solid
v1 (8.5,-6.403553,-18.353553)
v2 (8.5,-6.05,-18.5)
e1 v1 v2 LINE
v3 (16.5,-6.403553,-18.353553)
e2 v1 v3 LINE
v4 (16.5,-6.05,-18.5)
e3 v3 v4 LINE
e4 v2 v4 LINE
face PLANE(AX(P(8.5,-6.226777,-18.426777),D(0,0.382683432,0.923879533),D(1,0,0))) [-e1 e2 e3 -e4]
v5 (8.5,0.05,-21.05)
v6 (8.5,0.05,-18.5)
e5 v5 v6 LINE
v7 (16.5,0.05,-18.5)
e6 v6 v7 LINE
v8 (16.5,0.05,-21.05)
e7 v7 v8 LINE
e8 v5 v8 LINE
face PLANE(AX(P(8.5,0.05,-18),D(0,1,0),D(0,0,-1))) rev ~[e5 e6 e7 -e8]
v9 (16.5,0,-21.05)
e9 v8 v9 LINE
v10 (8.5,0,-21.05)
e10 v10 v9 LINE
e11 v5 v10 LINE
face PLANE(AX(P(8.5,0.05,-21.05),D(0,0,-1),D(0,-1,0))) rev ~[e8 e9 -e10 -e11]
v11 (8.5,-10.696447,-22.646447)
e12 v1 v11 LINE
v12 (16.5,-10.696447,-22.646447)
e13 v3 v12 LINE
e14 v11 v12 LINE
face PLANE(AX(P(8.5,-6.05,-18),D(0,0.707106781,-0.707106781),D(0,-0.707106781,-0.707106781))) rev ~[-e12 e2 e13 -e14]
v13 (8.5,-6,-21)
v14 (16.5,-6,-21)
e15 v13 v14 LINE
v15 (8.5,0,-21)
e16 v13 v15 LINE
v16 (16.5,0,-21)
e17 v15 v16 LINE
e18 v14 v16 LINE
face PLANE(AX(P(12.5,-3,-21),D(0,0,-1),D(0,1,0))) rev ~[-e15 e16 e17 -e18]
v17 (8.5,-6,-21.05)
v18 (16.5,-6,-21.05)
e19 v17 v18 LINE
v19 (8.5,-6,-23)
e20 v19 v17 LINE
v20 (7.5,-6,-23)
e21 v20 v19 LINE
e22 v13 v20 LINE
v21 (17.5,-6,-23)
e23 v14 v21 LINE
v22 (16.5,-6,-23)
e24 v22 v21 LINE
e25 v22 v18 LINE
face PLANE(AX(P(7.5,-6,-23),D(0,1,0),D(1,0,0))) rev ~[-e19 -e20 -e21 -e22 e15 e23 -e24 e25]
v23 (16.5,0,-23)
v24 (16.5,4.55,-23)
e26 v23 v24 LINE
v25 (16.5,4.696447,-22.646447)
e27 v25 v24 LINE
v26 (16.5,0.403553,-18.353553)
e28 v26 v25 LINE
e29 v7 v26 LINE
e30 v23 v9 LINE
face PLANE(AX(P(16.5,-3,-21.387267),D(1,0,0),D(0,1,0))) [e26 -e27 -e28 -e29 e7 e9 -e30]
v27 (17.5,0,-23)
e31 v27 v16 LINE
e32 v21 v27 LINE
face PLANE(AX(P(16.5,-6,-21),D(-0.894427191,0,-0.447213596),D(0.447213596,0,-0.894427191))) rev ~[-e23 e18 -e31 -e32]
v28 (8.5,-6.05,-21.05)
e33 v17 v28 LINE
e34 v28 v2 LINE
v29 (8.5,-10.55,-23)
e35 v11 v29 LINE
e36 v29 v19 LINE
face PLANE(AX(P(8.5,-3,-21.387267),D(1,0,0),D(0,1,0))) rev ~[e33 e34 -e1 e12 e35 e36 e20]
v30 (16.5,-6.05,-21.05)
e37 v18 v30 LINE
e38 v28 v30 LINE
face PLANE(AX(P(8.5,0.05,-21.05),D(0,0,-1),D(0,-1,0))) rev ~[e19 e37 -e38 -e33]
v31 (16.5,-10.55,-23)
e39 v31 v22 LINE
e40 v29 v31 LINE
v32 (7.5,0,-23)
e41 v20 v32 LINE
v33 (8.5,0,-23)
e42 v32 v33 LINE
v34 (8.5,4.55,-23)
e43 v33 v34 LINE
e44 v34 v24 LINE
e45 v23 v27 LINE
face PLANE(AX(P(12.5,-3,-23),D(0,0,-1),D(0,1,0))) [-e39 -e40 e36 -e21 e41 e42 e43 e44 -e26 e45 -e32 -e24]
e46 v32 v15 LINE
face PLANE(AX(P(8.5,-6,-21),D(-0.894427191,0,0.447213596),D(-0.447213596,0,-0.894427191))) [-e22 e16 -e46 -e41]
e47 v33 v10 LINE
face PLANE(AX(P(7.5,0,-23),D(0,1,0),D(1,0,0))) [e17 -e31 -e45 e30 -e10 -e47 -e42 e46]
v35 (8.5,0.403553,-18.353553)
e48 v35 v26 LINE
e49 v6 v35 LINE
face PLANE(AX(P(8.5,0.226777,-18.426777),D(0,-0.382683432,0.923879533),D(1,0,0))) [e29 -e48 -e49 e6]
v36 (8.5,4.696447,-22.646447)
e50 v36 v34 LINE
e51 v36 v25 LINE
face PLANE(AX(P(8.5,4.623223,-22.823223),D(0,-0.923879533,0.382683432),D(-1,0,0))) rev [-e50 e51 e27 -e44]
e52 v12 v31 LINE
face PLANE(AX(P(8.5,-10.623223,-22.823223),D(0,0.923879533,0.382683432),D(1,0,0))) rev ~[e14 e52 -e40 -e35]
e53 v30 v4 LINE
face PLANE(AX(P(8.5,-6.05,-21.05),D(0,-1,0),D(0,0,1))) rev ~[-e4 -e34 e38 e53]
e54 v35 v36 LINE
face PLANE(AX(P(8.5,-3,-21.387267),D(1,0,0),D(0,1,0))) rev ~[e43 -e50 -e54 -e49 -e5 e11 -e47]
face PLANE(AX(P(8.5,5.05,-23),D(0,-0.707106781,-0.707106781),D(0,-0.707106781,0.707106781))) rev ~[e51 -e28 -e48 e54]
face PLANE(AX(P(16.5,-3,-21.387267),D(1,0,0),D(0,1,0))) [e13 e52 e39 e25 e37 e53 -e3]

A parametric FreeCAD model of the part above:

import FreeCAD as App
import Part
import Sketcher
Q = App.Units.Quantity


def edges_at(feature, points):
    """Names of the edges that pass closest to the given points."""
    edges = feature.Shape.Edges
    near = lambda p: min(range(len(edges)), key=lambda i: edges[i].distToShape(Part.Vertex(*p))[0])
    return sorted({f"Edge{near(p) + 1}" for p in points})


def add_polygon(sketch, points):
    """Adds a closed chain of lines whose ends are joined by coincident constraints."""
    first, n = sketch.GeometryCount, len(points)
    for a, b in zip(points, points[1:] + points[:1]):
        sketch.addGeometry(Part.LineSegment(App.Vector(*a, 0), App.Vector(*b, 0)), False)
    for i in range(n):
        sketch.addConstraint(Sketcher.Constraint("Coincident", first + i, 2, first + (i + 1) % n, 1))

doc = App.newDocument("Part")
params = doc.addObject("Spreadsheet::Sheet", "Params")
for row, (alias, value) in enumerate([
    ("sketch1_width", "16.1 mm"),
    ("sketch1_width2", "6.1 mm"),
    ("sketch1_height", "3.05 mm"),
    ("pad1_length", "8 mm"),
    ("sketch2_width", "10 mm"),
    ("sketch2_height", "6 mm"),
    ("pad2_length", "2 mm"),
    ("sketch3_width", "1 mm"),
    ("sketch3_height", "2 mm"),
    ("chamfer_size", "0.5 mm"),
], start=1):
    params.set(f"A{row}", alias)
    params.set(f"B{row}", "=" + value)
    params.setAlias(f"B{row}", alias)

body = doc.addObject("PartDesign::Body", "Body")

# Sketch on YZ plane
sketch1 = body.newObject("Sketcher::SketchObject", "Sketch")
sketch1.AttachmentSupport = (doc.getObject("YZ_Plane"), [""])
sketch1.MapMode = "FlatFace"
add_polygon(sketch1, [(-3, 2.5), (-8.1, -2.5), (8.1, -2.5), (3, 2.5), (3, -0.6), (-3, -0.6)])  # lines 0-5
sketch1.addConstraint(Sketcher.Constraint("Horizontal", 1))
sketch1.addConstraint(Sketcher.Constraint("Vertical", 3))
sketch1.addConstraint(Sketcher.Constraint("Horizontal", 4))
sketch1.addConstraint(Sketcher.Constraint("Vertical", 5))
sketch1.addConstraint(Sketcher.Constraint("Symmetric", 2, 2, 5, 2, -2))
sketch1.addConstraint(Sketcher.Constraint("Perpendicular", 0, 2))
sketch1.addConstraint(Sketcher.Constraint("Equal", 0, 2))
sketch1.addConstraint(Sketcher.Constraint("DistanceX", 1, 1, 1, 2, Q("16.1 mm")))
sketch1.addConstraint(Sketcher.Constraint("DistanceX", 4, 2, 4, 1, Q("6.1 mm")))
sketch1.addConstraint(Sketcher.Constraint("DistanceY", 3, 2, 3, 1, Q("3.05 mm")))
sketch1.addConstraint(Sketcher.Constraint("DistanceY", 0, 2, -1, 1, Q("2.5 mm")))
sketch1.setExpression("Constraints[13]", "Params.sketch1_width")
sketch1.setExpression("Constraints[14]", "Params.sketch1_width2")
sketch1.setExpression("Constraints[15]", "Params.sketch1_height")
pad1 = body.newObject("PartDesign::Pad", "Pad")
pad1.Profile = sketch1
pad1.setExpression("Length", "Params.pad1_length")

# Sketch on XY plane
sketch2 = body.newObject("Sketcher::SketchObject", "Sketch001")
sketch2.AttachmentSupport = (doc.getObject("XY_Plane"), [""])
sketch2.MapMode = "FlatFace"
sketch2.AttachmentOffset = App.Placement(App.Vector(0, 0, -2.5), App.Rotation())
add_polygon(sketch2, [(9, -3), (-1, -3), (-1, 3), (9, 3)])  # lines 0-3
sketch2.addConstraint(Sketcher.Constraint("Horizontal", 0))
sketch2.addConstraint(Sketcher.Constraint("Vertical", 1))
sketch2.addConstraint(Sketcher.Constraint("Horizontal", 2))
sketch2.addConstraint(Sketcher.Constraint("Vertical", 3))
sketch2.addConstraint(Sketcher.Constraint("DistanceX", 0, 2, 0, 1, Q("10 mm")))
sketch2.addConstraint(Sketcher.Constraint("DistanceY", 1, 1, 1, 2, Q("6 mm")))
sketch2.addConstraint(Sketcher.Constraint("DistanceX", 0, 2, -1, 1, Q("1 mm")))
sketch2.addConstraint(Sketcher.Constraint("DistanceY", 0, 2, -1, 1, Q("3 mm")))
sketch2.setExpression("Constraints[8]", "Params.sketch2_width")
sketch2.setExpression("Constraints[9]", "Params.sketch2_height")
pad2 = body.newObject("PartDesign::Pad", "Pad001")
pad2.Profile = sketch2
pad2.setExpression("Length", "Params.pad2_length")

# Sketch on XZ plane
sketch3 = body.newObject("Sketcher::SketchObject", "Sketch002")
sketch3.AttachmentSupport = (doc.getObject("XZ_Plane"), [""])
sketch3.MapMode = "FlatFace"
sketch3.AttachmentOffset = App.Placement(App.Vector(0, 0, 3), App.Rotation())
add_polygon(sketch3, [(9, -2.5), (9, -0.5), (8, -0.5)])  # lines 0-2
add_polygon(sketch3, [(-1, -0.5), (-1, -2.5), (0, -0.5)])  # lines 3-5
sketch3.addConstraint(Sketcher.Constraint("Vertical", 0))
sketch3.addConstraint(Sketcher.Constraint("Horizontal", 1))
sketch3.addConstraint(Sketcher.Constraint("Vertical", 3))
sketch3.addConstraint(Sketcher.Constraint("Horizontal", 5))
sketch3.addConstraint(Sketcher.Constraint("PointOnObject", 4, 2, -2))
sketch3.addConstraint(Sketcher.Constraint("Horizontal", 2, 2, 3, 2))
sketch3.addConstraint(Sketcher.Constraint("Horizontal", 1, 2, 4, 2))
sketch3.addConstraint(Sketcher.Constraint("Equal", 1, 5))
sketch3.addConstraint(Sketcher.Constraint("DistanceX", 1, 2, 1, 1, Q("1 mm")))
sketch3.addConstraint(Sketcher.Constraint("DistanceY", 0, 1, 0, 2, Q("2 mm")))
sketch3.addConstraint(Sketcher.Constraint("DistanceX", -1, 1, 0, 2, Q("9 mm")))
sketch3.addConstraint(Sketcher.Constraint("DistanceY", 0, 2, -1, 1, Q("0.5 mm")))
sketch3.setExpression("Constraints[14]", "Params.sketch3_width")
sketch3.setExpression("Constraints[15]", "Params.sketch3_height")
pocket1 = body.newObject("PartDesign::Pocket", "Pocket")
pocket1.Profile = sketch3
pocket1.Type = "ThroughAll"
doc.recompute()

chamfer = body.newObject("PartDesign::Chamfer", "Chamfer")
chamfer.Base = (pocket1, edges_at(pocket1, [
    (4, -3.05, 2.5),
    (4, 3.05, 2.5),
    (4, -8.05, -2.5),
    (4, 8.05, -2.5),
]))
chamfer.setExpression("Size", "Params.chamfer_size")
body2 = doc.addObject("PartDesign::Body", "Body001")
doc.recompute()

body.Placement = App.Placement(App.Vector(8.5, -3, -20.5), App.Rotation(App.Vector(0, 0, 1), 0))
boolean = body2.newObject("PartDesign::Boolean", "Boolean")
boolean.Type = "Fuse"
boolean.addObjects([body])

doc.recompute()
